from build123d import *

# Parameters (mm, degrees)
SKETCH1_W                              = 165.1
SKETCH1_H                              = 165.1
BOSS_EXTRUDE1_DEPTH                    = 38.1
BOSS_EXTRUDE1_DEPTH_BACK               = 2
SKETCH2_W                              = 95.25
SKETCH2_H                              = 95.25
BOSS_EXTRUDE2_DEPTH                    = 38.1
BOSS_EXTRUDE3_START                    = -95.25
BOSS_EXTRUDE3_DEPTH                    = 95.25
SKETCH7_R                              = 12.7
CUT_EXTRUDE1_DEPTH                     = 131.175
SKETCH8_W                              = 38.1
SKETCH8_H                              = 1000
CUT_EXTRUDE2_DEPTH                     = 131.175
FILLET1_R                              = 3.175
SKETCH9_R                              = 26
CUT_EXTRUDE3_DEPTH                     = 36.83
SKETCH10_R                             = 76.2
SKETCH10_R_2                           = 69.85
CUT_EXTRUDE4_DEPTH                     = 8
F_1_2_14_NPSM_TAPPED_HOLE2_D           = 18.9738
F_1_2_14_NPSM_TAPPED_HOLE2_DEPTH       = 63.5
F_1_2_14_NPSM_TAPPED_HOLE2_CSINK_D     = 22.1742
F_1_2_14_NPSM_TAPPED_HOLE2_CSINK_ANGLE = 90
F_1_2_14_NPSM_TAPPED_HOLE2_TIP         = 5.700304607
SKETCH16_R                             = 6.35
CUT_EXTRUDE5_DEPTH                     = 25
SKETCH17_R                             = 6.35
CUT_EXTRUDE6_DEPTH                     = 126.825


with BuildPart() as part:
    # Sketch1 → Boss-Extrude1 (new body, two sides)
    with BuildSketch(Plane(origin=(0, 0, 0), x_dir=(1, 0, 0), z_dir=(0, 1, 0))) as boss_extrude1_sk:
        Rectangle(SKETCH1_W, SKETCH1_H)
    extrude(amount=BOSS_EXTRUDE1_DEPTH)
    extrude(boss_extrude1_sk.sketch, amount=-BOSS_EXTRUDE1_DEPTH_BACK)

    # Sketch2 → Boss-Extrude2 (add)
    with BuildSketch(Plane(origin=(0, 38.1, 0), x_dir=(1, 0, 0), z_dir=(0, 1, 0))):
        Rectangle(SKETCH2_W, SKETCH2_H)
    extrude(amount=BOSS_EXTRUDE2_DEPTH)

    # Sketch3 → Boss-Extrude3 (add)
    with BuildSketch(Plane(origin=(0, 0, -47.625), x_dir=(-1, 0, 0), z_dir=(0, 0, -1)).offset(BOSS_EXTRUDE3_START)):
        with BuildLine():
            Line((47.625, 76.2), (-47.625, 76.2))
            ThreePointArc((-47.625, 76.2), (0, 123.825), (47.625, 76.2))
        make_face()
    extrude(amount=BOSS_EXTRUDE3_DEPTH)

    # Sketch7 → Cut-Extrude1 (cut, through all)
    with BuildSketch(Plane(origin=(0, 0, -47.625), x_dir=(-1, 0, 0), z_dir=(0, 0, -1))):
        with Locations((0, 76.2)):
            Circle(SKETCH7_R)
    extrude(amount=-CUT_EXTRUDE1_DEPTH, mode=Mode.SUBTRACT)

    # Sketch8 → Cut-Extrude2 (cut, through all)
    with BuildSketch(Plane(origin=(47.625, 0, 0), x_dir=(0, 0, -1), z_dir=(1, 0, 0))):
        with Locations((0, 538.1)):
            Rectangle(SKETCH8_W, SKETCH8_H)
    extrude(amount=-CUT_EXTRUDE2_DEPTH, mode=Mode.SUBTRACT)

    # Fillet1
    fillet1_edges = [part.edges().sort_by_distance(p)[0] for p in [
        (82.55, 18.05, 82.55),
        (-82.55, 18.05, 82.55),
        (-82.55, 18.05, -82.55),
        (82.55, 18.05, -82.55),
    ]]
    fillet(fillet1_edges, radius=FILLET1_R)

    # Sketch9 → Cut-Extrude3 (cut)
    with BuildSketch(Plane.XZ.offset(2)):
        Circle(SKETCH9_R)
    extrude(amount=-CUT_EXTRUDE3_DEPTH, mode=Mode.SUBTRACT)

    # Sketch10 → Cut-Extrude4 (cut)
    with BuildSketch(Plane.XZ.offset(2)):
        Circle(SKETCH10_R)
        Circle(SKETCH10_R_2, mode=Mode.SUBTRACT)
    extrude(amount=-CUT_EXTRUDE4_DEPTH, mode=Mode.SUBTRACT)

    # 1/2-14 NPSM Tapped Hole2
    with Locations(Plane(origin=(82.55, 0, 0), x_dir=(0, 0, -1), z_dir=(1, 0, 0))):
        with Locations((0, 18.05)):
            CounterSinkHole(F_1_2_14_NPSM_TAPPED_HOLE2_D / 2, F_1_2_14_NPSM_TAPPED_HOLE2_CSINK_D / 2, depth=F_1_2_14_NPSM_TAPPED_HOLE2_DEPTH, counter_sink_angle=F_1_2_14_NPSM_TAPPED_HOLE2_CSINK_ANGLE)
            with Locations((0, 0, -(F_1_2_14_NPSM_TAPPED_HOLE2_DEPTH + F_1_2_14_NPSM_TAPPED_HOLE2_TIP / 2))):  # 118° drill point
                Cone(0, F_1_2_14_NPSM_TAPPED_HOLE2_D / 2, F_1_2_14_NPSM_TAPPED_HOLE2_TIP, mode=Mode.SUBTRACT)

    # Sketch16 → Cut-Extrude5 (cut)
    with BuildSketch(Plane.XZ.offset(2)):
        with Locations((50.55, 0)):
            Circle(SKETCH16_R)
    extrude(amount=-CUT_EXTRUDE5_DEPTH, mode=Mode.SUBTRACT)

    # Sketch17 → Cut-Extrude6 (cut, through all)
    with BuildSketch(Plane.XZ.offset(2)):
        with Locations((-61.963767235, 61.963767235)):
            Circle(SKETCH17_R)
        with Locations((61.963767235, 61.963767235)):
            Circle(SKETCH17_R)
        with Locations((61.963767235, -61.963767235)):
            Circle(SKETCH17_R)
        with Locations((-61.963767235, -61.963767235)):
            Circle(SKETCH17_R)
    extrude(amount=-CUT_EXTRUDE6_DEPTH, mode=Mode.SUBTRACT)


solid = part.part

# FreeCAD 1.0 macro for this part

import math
import FreeCAD as App
import Part
import Sketcher
Q = App.Units.Quantity


def edges_at(feature, points):
    """Names of the edges that pass closest to the given points."""
    edges = feature.Shape.Edges
    near = lambda p: min(range(len(edges)), key=lambda i: edges[i].distToShape(Part.Vertex(*p))[0])
    return sorted({f"Edge{near(p) + 1}" for p in points})

doc = App.newDocument("Part")
body = doc.addObject("PartDesign::Body", "Body")

# Sketch on XZ plane
sketch1 = body.newObject("Sketcher::SketchObject", "Sketch")
sketch1.AttachmentSupport = (doc.getObject("XZ_Plane"), [""])
sketch1.MapMode = "FlatFace"
sketch1.addGeometry([
    Part.LineSegment(App.Vector(-83, -83, 0), App.Vector(-83, 83, 0)),
    Part.LineSegment(App.Vector(-83, 83, 0), App.Vector(83, 83, 0)),
    Part.LineSegment(App.Vector(83, 83, 0), App.Vector(83, -83, 0)),
    Part.LineSegment(App.Vector(83, -83, 0), App.Vector(-83, -83, 0)),
], False)
sketch1.addConstraint([
    Sketcher.Constraint("Coincident", 0, 2, 1, 1),
    Sketcher.Constraint("Coincident", 1, 2, 2, 1),
    Sketcher.Constraint("Coincident", 2, 2, 3, 1),
    Sketcher.Constraint("Coincident", 3, 2, 0, 1),
    Sketcher.Constraint("Vertical", 0),
    Sketcher.Constraint("Horizontal", 1),
    Sketcher.Constraint("Vertical", 2),
    Sketcher.Constraint("Horizontal", 3),
    Sketcher.Constraint("Symmetric", 0, 2, 2, 2, -1, 1),
    Sketcher.Constraint("Equal", 3, 0),
    Sketcher.Constraint("DistanceX", 1, 1, 1, 2, Q("6.5 in")),
])
pad1 = body.newObject("PartDesign::Pad", "Pad")
pad1.Profile = sketch1
pad1.Type = "TwoLengths"
pad1.Length = Q("1.5 in")
pad1.Length2 = 2
pad1.Reversed = True

# Sketch on XZ plane
sketch2 = body.newObject("Sketcher::SketchObject", "Sketch001")
sketch2.AttachmentSupport = (doc.getObject("XZ_Plane"), [""])
sketch2.MapMode = "FlatFace"
sketch2.AttachmentOffset = App.Placement(App.Vector(0, 0, -1.5 * 25.4), App.Rotation())
sketch2.addGeometry([
    Part.LineSegment(App.Vector(-48, -48, 0), App.Vector(-48, 48, 0)),
    Part.LineSegment(App.Vector(-48, 48, 0), App.Vector(48, 48, 0)),
    Part.LineSegment(App.Vector(48, 48, 0), App.Vector(48, -48, 0)),
    Part.LineSegment(App.Vector(48, -48, 0), App.Vector(-48, -48, 0)),
], False)
sketch2.addConstraint([
    Sketcher.Constraint("Coincident", 0, 2, 1, 1),
    Sketcher.Constraint("Coincident", 1, 2, 2, 1),
    Sketcher.Constraint("Coincident", 2, 2, 3, 1),
    Sketcher.Constraint("Coincident", 3, 2, 0, 1),
    Sketcher.Constraint("Vertical", 0),
    Sketcher.Constraint("Horizontal", 1),
    Sketcher.Constraint("Vertical", 2),
    Sketcher.Constraint("Horizontal", 3),
    Sketcher.Constraint("Symmetric", 0, 2, 2, 2, -1, 1),
    Sketcher.Constraint("Equal", 3, 0),
    Sketcher.Constraint("DistanceX", 1, 1, 1, 2, Q("3.75 in")),
])
pad2 = body.newObject("PartDesign::Pad", "Pad001")
pad2.Profile = sketch2
pad2.Length = Q("1.5 in")
pad2.Reversed = True

# Sketch on XY plane
sketch3 = body.newObject("Sketcher::SketchObject", "Sketch002")
sketch3.AttachmentSupport = (doc.getObject("XY_Plane"), [""])
sketch3.MapMode = "FlatFace"
sketch3.AttachmentOffset = App.Placement(App.Vector(0, 0, 1.875 * 25.4), App.Rotation())
sketch3.addGeometry([
    Part.LineSegment(App.Vector(48, 76, 0), App.Vector(-48, 76, 0)),
    Part.ArcOfCircle(Part.Circle(App.Vector(0, 76, 0), App.Vector(0, 0, 1), 48), math.radians(0), math.radians(180)),
], False)
sketch3.addConstraint([
    Sketcher.Constraint("Coincident", 0, 1, 1, 1),
    Sketcher.Constraint("Coincident", 1, 2, 0, 2),
    Sketcher.Constraint("Horizontal", 0),
    Sketcher.Constraint("PointOnObject", 1, 3, -2),
    Sketcher.Constraint("Horizontal", 1, 3, 0, 1),
    Sketcher.Constraint("DistanceY", -1, 1, 1, 3, Q("3 in")),
    Sketcher.Constraint("Radius", 1, Q("1.875 in")),
])
pad3 = body.newObject("PartDesign::Pad", "Pad002")
pad3.Profile = sketch3
pad3.Length = Q("3.75 in")
pad3.Reversed = True

# Sketch on XY plane
sketch4 = body.newObject("Sketcher::SketchObject", "Sketch003")
sketch4.AttachmentSupport = (doc.getObject("XY_Plane"), [""])
sketch4.MapMode = "FlatFace"
sketch4.AttachmentOffset = App.Placement(App.Vector(0, 0, -1.875 * 25.4), App.Rotation())
sketch4.addGeometry(Part.Circle(App.Vector(0, 76, 0), App.Vector(0, 0, 1), 13), False)
sketch4.addConstraint([
    Sketcher.Constraint("PointOnObject", 0, 3, -2),
    Sketcher.Constraint("Diameter", 0, Q("1 in")),
    Sketcher.Constraint("DistanceY", -1, 1, 0, 3, Q("3 in")),
])
pocket1 = body.newObject("PartDesign::Pocket", "Pocket")
pocket1.Profile = sketch4
pocket1.Type = "ThroughAll"
pocket1.Reversed = True

# Sketch on YZ plane
sketch5 = body.newObject("Sketcher::SketchObject", "Sketch004")
sketch5.AttachmentSupport = (doc.getObject("YZ_Plane"), [""])
sketch5.MapMode = "FlatFace"
sketch5.AttachmentOffset = App.Placement(App.Vector(0, 0, 1.875 * 25.4), App.Rotation())
sketch5.addGeometry([
    Part.LineSegment(App.Vector(1038, 19, 0), App.Vector(38, 19, 0)),
    Part.LineSegment(App.Vector(38, 19, 0), App.Vector(38, -19, 0)),
    Part.LineSegment(App.Vector(38, -19, 0), App.Vector(1038, -19, 0)),
    Part.LineSegment(App.Vector(1038, -19, 0), App.Vector(1038, 19, 0)),
], False)
sketch5.addConstraint([
    Sketcher.Constraint("Coincident", 0, 2, 1, 1),
    Sketcher.Constraint("Coincident", 1, 2, 2, 1),
    Sketcher.Constraint("Coincident", 2, 2, 3, 1),
    Sketcher.Constraint("Coincident", 3, 2, 0, 1),
    Sketcher.Constraint("Horizontal", 0),
    Sketcher.Constraint("Vertical", 1),
    Sketcher.Constraint("Horizontal", 2),
    Sketcher.Constraint("Vertical", 3),
    Sketcher.Constraint("DistanceY", 1, 2, 1, 1, Q("1.5 in")),
    Sketcher.Constraint("DistanceX", -1, 1, 0, 2, Q("1.5 in")),
    Sketcher.Constraint("DistanceY", -1, 1, 0, 2, Q("0.75 in")),
    Sketcher.Constraint("DistanceX", 0, 2, 0, 1, 1000.0),
])
pocket2 = body.newObject("PartDesign::Pocket", "Pocket001")
pocket2.Profile = sketch5
pocket2.Type = "ThroughAll"
doc.recompute()

fillet = body.newObject("PartDesign::Fillet", "Fillet")
fillet.Base = (pocket2, edges_at(pocket2, [
    (82.55, 18.05, 82.55),
    (-82.55, 18.05, 82.55),
    (-82.55, 18.05, -82.55),
    (82.55, 18.05, -82.55),
]))
fillet.Radius = Q("0.125 in")

# Sketch on XZ plane
sketch6 = body.newObject("Sketcher::SketchObject", "Sketch005")
sketch6.AttachmentSupport = (doc.getObject("XZ_Plane"), [""])
sketch6.MapMode = "FlatFace"
sketch6.AttachmentOffset = App.Placement(App.Vector(0, 0, 2), App.Rotation())
sketch6.addGeometry(Part.Circle(App.Vector(0, 0, 0), App.Vector(0, 0, 1), 26), False)
sketch6.addConstraint([
    Sketcher.Constraint("Coincident", 0, 3, -1, 1),
    Sketcher.Constraint("Diameter", 0, 52.0),
])
pocket3 = body.newObject("PartDesign::Pocket", "Pocket002")
pocket3.Profile = sketch6
pocket3.Length = Q("1.45 in")

# Sketch on XZ plane
sketch7 = body.newObject("Sketcher::SketchObject", "Sketch006")
sketch7.AttachmentSupport = (doc.getObject("XZ_Plane"), [""])
sketch7.MapMode = "FlatFace"
sketch7.AttachmentOffset = App.Placement(App.Vector(0, 0, 2), App.Rotation())
sketch7.addGeometry([
    Part.Circle(App.Vector(0, 0, 0), App.Vector(0, 0, 1), 76),
    Part.Circle(App.Vector(0, 0, 0), App.Vector(0, 0, 1), 70),
], False)
sketch7.addConstraint([
    Sketcher.Constraint("Coincident", 0, 3, -1, 1),
    Sketcher.Constraint("Coincident", 1, 3, -1, 1),
    Sketcher.Constraint("Diameter", 0, Q("6 in")),
    Sketcher.Constraint("Diameter", 1, Q("5.5 in")),
])
pocket4 = body.newObject("PartDesign::Pocket", "Pocket003")
pocket4.Profile = sketch7
pocket4.Length = 8

# Sketch on YZ plane
sketch8 = body.newObject("Sketcher::SketchObject", "Sketch007")
sketch8.AttachmentSupport = (doc.getObject("YZ_Plane"), [""])
sketch8.MapMode = "FlatFace"
sketch8.AttachmentOffset = App.Placement(App.Vector(0, 0, 3.25 * 25.4), App.Rotation())
sketch8.addGeometry(Part.Circle(App.Vector(18, 0, 0), App.Vector(0, 0, 1), 9), False)
sketch8.addConstraint([
    Sketcher.Constraint("PointOnObject", 0, 3, -1),
    Sketcher.Constraint("Diameter", 0, Q("0.747 in")),
    Sketcher.Constraint("DistanceX", -1, 1, 0, 3, 18.05),
])
doc.recompute()
hole = body.newObject("PartDesign::Hole", "Hole")
hole.Profile = sketch8
hole.ThreadType = "None"
hole.Diameter = Q("0.747 in")
hole.DepthType = "Dimension"
hole.Depth = Q("2.5 in")
hole.DrillPoint = "Angled"
hole.DrillPointAngle = 118
hole.HoleCutType = "Countersink"
hole.HoleCutDiameter = Q("0.873 in")
hole.HoleCutCountersinkAngle = 90

# Sketch on XZ plane
sketch9 = body.newObject("Sketcher::SketchObject", "Sketch008")
sketch9.AttachmentSupport = (doc.getObject("XZ_Plane"), [""])
sketch9.MapMode = "FlatFace"
sketch9.AttachmentOffset = App.Placement(App.Vector(0, 0, 2), App.Rotation())
sketch9.addGeometry(Part.Circle(App.Vector(51, 0, 0), App.Vector(0, 0, 1), 6), False)
sketch9.addConstraint([
    Sketcher.Constraint("PointOnObject", 0, 3, -1),
    Sketcher.Constraint("Diameter", 0, Q("0.5 in")),
    Sketcher.Constraint("DistanceX", -1, 1, 0, 3, 50.55),
])
pocket5 = body.newObject("PartDesign::Pocket", "Pocket004")
pocket5.Profile = sketch9
pocket5.Length = 25

# Sketch on XZ plane
sketch10 = body.newObject("Sketcher::SketchObject", "Sketch009")
sketch10.AttachmentSupport = (doc.getObject("XZ_Plane"), [""])
sketch10.MapMode = "FlatFace"
sketch10.AttachmentOffset = App.Placement(App.Vector(0, 0, 2), App.Rotation())
sketch10.addGeometry([
    Part.Circle(App.Vector(-62, 62, 0), App.Vector(0, 0, 1), 6),
    Part.Circle(App.Vector(62, 62, 0), App.Vector(0, 0, 1), 6),
    Part.Circle(App.Vector(62, -62, 0), App.Vector(0, 0, 1), 6),
    Part.Circle(App.Vector(-62, -62, 0), App.Vector(0, 0, 1), 6),
], False)
sketch10.addConstraint([
    Sketcher.Constraint("Equal", 0, 1),
    Sketcher.Constraint("Equal", 1, 2),
    Sketcher.Constraint("Equal", 2, 3),
    Sketcher.Constraint("Symmetric", 0, 3, 2, 3, -1, 1),
    Sketcher.Constraint("Symmetric", 1, 3, 3, 3, -1, 1),
    Sketcher.Constraint("Symmetric", 0, 3, 1, 3, -2),
    Sketcher.Constraint("Diameter", 0, Q("0.5 in")),
    Sketcher.Constraint("DistanceX", 0, 3, -1, 1, 61.963767),
    Sketcher.Constraint("DistanceY", -1, 1, 0, 3, 61.963767),
])
pocket6 = body.newObject("PartDesign::Pocket", "Pocket005")
pocket6.Profile = sketch10
pocket6.Type = "ThroughAll"

doc.recompute()
